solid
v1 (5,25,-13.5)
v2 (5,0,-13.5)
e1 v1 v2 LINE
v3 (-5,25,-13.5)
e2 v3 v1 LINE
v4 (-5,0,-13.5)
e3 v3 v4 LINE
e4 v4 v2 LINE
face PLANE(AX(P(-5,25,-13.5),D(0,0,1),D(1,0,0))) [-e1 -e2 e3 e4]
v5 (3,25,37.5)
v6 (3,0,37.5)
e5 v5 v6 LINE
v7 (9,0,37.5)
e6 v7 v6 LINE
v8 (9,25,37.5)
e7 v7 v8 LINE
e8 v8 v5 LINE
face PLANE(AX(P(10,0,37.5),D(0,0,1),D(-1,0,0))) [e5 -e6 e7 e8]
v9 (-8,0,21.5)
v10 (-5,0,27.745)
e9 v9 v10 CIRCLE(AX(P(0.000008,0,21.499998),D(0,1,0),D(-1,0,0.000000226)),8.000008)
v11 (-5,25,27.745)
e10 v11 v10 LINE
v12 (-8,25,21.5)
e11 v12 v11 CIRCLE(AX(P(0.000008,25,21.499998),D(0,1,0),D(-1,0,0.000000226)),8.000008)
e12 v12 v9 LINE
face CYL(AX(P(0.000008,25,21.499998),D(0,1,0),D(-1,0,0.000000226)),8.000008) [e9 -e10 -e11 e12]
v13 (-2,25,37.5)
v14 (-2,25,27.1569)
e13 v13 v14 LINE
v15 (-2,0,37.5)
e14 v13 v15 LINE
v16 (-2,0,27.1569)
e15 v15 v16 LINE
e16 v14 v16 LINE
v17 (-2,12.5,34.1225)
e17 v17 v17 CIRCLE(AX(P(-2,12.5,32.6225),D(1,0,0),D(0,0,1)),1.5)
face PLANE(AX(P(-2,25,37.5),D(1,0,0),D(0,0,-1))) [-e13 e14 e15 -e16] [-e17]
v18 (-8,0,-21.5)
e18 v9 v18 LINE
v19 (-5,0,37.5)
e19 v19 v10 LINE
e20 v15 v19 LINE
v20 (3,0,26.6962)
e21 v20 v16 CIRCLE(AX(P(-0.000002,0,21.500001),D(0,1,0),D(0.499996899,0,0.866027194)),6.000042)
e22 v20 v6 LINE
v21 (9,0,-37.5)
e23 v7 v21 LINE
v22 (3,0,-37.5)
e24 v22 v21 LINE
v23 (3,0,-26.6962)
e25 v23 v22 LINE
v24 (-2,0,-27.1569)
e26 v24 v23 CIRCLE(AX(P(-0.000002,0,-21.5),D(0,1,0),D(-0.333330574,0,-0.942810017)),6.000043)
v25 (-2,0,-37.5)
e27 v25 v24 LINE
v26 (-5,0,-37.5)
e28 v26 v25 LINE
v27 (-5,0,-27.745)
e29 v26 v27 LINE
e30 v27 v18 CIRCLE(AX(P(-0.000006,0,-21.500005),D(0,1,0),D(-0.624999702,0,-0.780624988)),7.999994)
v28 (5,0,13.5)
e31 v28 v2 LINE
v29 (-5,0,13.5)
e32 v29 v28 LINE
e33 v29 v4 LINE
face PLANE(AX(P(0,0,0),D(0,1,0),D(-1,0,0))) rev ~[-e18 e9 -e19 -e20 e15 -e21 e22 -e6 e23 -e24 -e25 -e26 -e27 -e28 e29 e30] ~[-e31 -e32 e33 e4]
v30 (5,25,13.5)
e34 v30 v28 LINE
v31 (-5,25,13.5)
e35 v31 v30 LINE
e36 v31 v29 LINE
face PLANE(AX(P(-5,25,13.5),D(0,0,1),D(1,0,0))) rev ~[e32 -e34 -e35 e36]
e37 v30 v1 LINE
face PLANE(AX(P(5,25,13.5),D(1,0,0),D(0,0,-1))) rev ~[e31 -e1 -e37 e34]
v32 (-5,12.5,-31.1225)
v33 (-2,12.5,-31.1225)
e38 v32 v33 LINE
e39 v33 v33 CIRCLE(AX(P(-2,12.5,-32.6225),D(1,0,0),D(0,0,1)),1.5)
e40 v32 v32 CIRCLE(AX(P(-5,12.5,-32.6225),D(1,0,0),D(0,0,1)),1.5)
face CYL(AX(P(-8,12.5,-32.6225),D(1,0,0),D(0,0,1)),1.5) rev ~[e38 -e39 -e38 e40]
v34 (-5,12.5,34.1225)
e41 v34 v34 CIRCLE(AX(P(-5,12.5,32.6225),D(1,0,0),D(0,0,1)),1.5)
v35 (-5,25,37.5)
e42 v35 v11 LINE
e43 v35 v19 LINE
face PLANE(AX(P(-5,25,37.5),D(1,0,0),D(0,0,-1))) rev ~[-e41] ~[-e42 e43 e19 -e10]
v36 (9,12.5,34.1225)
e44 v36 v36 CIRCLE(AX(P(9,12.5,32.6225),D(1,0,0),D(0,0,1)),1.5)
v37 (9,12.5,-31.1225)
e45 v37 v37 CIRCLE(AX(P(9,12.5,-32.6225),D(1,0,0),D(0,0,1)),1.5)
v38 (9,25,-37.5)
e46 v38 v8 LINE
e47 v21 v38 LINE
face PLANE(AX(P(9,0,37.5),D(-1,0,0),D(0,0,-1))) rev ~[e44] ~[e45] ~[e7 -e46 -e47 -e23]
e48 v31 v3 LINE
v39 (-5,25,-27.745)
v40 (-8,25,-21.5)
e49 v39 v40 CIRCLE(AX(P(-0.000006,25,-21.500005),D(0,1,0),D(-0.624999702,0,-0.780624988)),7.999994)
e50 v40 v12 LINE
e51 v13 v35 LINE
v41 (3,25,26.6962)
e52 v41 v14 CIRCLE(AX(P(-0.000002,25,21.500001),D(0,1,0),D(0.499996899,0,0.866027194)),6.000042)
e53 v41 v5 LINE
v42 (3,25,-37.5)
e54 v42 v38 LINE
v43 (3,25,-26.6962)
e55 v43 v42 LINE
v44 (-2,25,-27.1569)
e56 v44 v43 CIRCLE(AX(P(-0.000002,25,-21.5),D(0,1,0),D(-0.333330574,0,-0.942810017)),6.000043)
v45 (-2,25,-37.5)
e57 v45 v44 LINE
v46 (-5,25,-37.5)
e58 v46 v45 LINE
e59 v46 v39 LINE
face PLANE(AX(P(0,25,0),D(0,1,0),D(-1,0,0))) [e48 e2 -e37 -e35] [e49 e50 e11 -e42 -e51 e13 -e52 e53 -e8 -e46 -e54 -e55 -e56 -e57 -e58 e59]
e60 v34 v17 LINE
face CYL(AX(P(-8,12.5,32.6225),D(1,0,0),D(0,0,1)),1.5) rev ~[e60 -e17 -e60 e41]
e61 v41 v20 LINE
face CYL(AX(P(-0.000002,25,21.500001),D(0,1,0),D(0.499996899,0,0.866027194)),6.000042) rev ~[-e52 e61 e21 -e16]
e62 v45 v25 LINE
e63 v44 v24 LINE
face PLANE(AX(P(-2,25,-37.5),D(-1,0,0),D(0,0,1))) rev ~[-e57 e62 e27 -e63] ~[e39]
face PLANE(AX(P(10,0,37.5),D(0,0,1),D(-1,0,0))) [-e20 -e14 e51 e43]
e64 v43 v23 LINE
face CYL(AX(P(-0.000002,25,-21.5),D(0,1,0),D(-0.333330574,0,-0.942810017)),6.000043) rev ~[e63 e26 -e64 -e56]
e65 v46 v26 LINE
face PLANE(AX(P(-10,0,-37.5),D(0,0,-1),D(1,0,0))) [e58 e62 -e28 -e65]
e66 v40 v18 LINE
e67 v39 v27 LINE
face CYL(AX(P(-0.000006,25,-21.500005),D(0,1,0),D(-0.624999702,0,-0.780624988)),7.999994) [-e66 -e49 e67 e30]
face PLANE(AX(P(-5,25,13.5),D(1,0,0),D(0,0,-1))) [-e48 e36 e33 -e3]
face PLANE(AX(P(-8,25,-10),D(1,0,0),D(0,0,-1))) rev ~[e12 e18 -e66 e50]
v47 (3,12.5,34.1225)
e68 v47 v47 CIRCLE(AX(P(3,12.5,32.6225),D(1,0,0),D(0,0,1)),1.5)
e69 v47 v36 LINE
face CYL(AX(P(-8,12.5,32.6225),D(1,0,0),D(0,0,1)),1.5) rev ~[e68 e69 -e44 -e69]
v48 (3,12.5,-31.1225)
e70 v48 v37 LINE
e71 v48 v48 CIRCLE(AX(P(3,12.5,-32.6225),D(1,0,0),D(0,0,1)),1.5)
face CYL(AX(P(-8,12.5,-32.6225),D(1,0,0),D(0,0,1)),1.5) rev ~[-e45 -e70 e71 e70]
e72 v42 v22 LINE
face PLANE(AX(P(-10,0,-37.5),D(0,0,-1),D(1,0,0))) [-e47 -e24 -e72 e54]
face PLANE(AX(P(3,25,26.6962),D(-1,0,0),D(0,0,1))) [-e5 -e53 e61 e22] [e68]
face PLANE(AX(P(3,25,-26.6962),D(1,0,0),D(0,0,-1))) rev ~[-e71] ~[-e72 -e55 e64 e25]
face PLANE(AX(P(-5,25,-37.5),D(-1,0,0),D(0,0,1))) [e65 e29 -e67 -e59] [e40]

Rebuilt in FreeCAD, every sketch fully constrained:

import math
import FreeCAD as App
import Part
import Sketcher
from FreeCAD import Vector
Q = App.Units.Quantity


def add_polygon(sketch, points):
    """Adds a closed chain of lines whose ends are joined by coincident constraints."""
    first, n = sketch.GeometryCount, len(points)
    for a, b in zip(points, points[1:] + points[:1]):
        sketch.addGeometry(Part.LineSegment(App.Vector(*a, 0), App.Vector(*b, 0)), False)
    for i in range(n):
        sketch.addConstraint(Sketcher.Constraint("Coincident", first + i, 2, first + (i + 1) % n, 1))

doc = App.newDocument("Part")
body = doc.addObject("PartDesign::Body", "Body")

sketch1 = body.newObject("Sketcher::SketchObject", "Sketch")
sketch1.AttachmentSupport = (doc.getObject("XZ_Plane"), [""])
sketch1.MapMode = "FlatFace"
add_polygon(sketch1, [(-10, 38), (10, 38), (10, -38), (-10, -38)])
sketch1.addConstraint([
    Sketcher.Constraint("Horizontal", 0),
    Sketcher.Constraint("Vertical", 1),
    Sketcher.Constraint("Horizontal", 2),
    Sketcher.Constraint("Vertical", 3),
    Sketcher.Constraint("Symmetric", 0, 2, 2, 2, -1, 1),
    Sketcher.Constraint("DistanceX", 0, 1, 0, 2, Q("20 mm")),
    Sketcher.Constraint("DistanceY", 1, 2, 1, 1, Q("75 mm")),
])
pad1 = body.newObject("PartDesign::Pad", "Pad")
pad1.Profile = sketch1
pad1.Length = 25
pad1.Reversed = True

sketch2 = body.newObject("Sketcher::SketchObject", "Sketch001")
sketch2.AttachmentSupport = (doc.getObject("XZ_Plane"), [""])
sketch2.MapMode = "FlatFace"
sketch2.AttachmentOffset = App.Placement(Vector(0, 0, -25), App.Rotation())
sketch2.addGeometry([
    Part.LineSegment(Vector(-2, 27, 0), Vector(-2, 38, 0)),
    Part.LineSegment(Vector(-2, 38, 0), Vector(3, 38, 0)),
    Part.LineSegment(Vector(3, 38, 0), Vector(3, 27, 0)),
    Part.ArcOfCircle(Part.Circle(Vector(0, 22, 0), Vector(0, 0, 1), 6), math.radians(109), math.radians(420)),
    Part.LineSegment(Vector(3, -38, 0), Vector(-2, -38, 0)),
    Part.LineSegment(Vector(-2, -38, 0), Vector(-2, -27, 0)),
    Part.ArcOfCircle(Part.Circle(Vector(0, -22, 0), Vector(0, 0, 1), 6), math.radians(-60), math.radians(251)),
    Part.LineSegment(Vector(3, -27, 0), Vector(3, -38, 0)),
], False)
sketch2.addConstraint([
    Sketcher.Constraint("Coincident", 0, 2, 1, 1),
    Sketcher.Constraint("Coincident", 1, 2, 2, 1),
    Sketcher.Constraint("Coincident", 2, 2, 3, 2),
    Sketcher.Constraint("Coincident", 3, 1, 0, 1),
    Sketcher.Constraint("Coincident", 4, 2, 5, 1),
    Sketcher.Constraint("Coincident", 5, 2, 6, 2),
    Sketcher.Constraint("Coincident", 6, 1, 7, 1),
    Sketcher.Constraint("Coincident", 7, 2, 4, 1),
    Sketcher.Constraint("Vertical", 0),
    Sketcher.Constraint("Horizontal", 1),
    Sketcher.Constraint("Vertical", 2),
    Sketcher.Constraint("Horizontal", 4),
    Sketcher.Constraint("Vertical", 5),
    Sketcher.Constraint("Vertical", 7),
    Sketcher.Constraint("Equal", 3, 6),
    Sketcher.Constraint("Symmetric", 3, 3, 6, 3, -1, 1),
    Sketcher.Constraint("Symmetric", 0, 2, 4, 2, -1),
    Sketcher.Constraint("Symmetric", 2, 2, 6, 1, -1),
    Sketcher.Constraint("Radius", 3, Q("6 mm")),
    Sketcher.Constraint("DistanceX", 1, 1, 1, 2, Q("5 mm")),
    Sketcher.Constraint("DistanceX", 0, 2, -1, 1, Q("2 mm")),
    Sketcher.Constraint("DistanceY", -1, 1, 3, 3, Q("21.5 mm")),
    Sketcher.Constraint("DistanceY", 3, 3, 0, 2, Q("16 mm")),
])
pocket1 = body.newObject("PartDesign::Pocket", "Pocket")
pocket1.Profile = sketch2
pocket1.Type = "ThroughAll"
pocket1.Reversed = True

sketch3 = body.newObject("Sketcher::SketchObject", "Sketch002")
sketch3.AttachmentSupport = (doc.getObject("XZ_Plane"), [""])
sketch3.MapMode = "FlatFace"
sketch3.AttachmentOffset = App.Placement(Vector(0, 0, -25), App.Rotation())
sketch3.addGeometry(Part.LineSegment(Vector(-10, -38, 0), Vector(-10, 38, 0)), False)
sketch3.addGeometry(Part.LineSegment(Vector(-10, 38, 0), Vector(-5, 38, 0)), False)
sketch3.addGeometry(Part.LineSegment(Vector(-5, 38, 0), Vector(-5, 28, 0)), False)
sketch3.addGeometry(Part.ArcOfCircle(Part.Circle(Vector(0, 22, 0), Vector(0, 0, 1), 8), math.radians(129), math.radians(180)), False)
sketch3.addGeometry(Part.LineSegment(Vector(-8, 22, 0), Vector(-8, -22, 0)), False)
sketch3.addGeometry(Part.ArcOfCircle(Part.Circle(Vector(0, -22, 0), Vector(0, 0, 1), 8), math.radians(180), math.radians(231)), False)
sketch3.addGeometry(Part.LineSegment(Vector(-5, -28, 0), Vector(-5, -38, 0)), False)
sketch3.addGeometry(Part.LineSegment(Vector(-5, -38, 0), Vector(-10, -38, 0)), False)
add_polygon(sketch3, [(-5, -14), (-5, 14), (5, 14), (5, -14)])
sketch3.addConstraint([
    Sketcher.Constraint("Coincident", 0, 2, 1, 1),
    Sketcher.Constraint("Coincident", 1, 2, 2, 1),
    Sketcher.Constraint("Coincident", 2, 2, 3, 1),
    Sketcher.Constraint("Tangent", 3, 2, 4, 1),
    Sketcher.Constraint("Tangent", 4, 2, 5, 1),
    Sketcher.Constraint("Coincident", 5, 2, 6, 1),
    Sketcher.Constraint("Coincident", 6, 2, 7, 1),
    Sketcher.Constraint("Coincident", 7, 2, 0, 1),
    Sketcher.Constraint("Vertical", 0),
    Sketcher.Constraint("Horizontal", 1),
    Sketcher.Constraint("Vertical", 2),
    Sketcher.Constraint("Vertical", 4),
    Sketcher.Constraint("Vertical", 6),
    Sketcher.Constraint("Horizontal", 7),
    Sketcher.Constraint("Vertical", 8),
    Sketcher.Constraint("Horizontal", 9),
    Sketcher.Constraint("Vertical", 10),
    Sketcher.Constraint("Horizontal", 11),
    Sketcher.Constraint("Equal", 3, 5),
    Sketcher.Constraint("Symmetric", 3, 3, 5, 3, -1, 1),
    Sketcher.Constraint("Symmetric", 8, 2, 10, 2, -1, 1),
    Sketcher.Constraint("Symmetric", 1, 2, 6, 2, -1),
    Sketcher.Constraint("Vertical", 6, 2, 8, 2),
    Sketcher.Constraint("DistanceX", 1, 1, 1, 2, Q("5 mm")),
    Sketcher.Constraint("DistanceX", 9, 1, 9, 2, Q("10 mm")),
    Sketcher.Constraint("Radius", 3, Q("8 mm")),
    Sketcher.Constraint("DistanceY", -1, 1, 3, 3, Q("21.5 mm")),
    Sketcher.Constraint("DistanceY", 0, 1, 0, 2, Q("75 mm")),
    Sketcher.Constraint("DistanceY", 8, 1, 8, 2, Q("27 mm")),
])
pocket2 = body.newObject("PartDesign::Pocket", "Pocket001")
pocket2.Profile = sketch3
pocket2.Type = "ThroughAll"
pocket2.Reversed = True

sketch4 = body.newObject("Sketcher::SketchObject", "Sketch003")
sketch4.AttachmentSupport = (doc.getObject("YZ_Plane"), [""])
sketch4.MapMode = "FlatFace"
sketch4.AttachmentOffset = App.Placement(Vector(0, 0, -8), App.Rotation())
sketch4.addGeometry([
    Part.Circle(Vector(12.5, 32.6, 0), Vector(0, 0, 1), 1.5),
    Part.Circle(Vector(12.5, -32.6, 0), Vector(0, 0, 1), 1.5),
], False)
sketch4.addConstraint([
    Sketcher.Constraint("Equal", 0, 1),
    Sketcher.Constraint("Symmetric", 0, 3, 1, 3, -1),
    Sketcher.Constraint("Diameter", 0, Q("3 mm")),
    Sketcher.Constraint("DistanceX", -1, 1, 0, 3, Q("12.5 mm")),
    Sketcher.Constraint("DistanceY", 1, 3, 0, 3, Q("65.245 mm")),
])
doc.recompute()
hole = body.newObject("PartDesign::Hole", "Hole")
hole.Profile = sketch4
hole.ThreadType = "None"
hole.Diameter = 3
hole.DepthType = "ThroughAll"
hole.Reversed = True

sketch5 = body.newObject("Sketcher::SketchObject", "Sketch004")
sketch5.AttachmentSupport = (doc.getObject("XZ_Plane"), [""])
sketch5.MapMode = "FlatFace"
add_polygon(sketch5, [(9, 37.5), (9, -37.5), (10, -37.5), (10, 37.5)])
sketch5.addConstraint([
    Sketcher.Constraint("Vertical", 0),
    Sketcher.Constraint("Horizontal", 1),
    Sketcher.Constraint("Vertical", 2),
    Sketcher.Constraint("Horizontal", 3),
    Sketcher.Constraint("DistanceX", 1, 1, 1, 2, Q("1 mm")),
    Sketcher.Constraint("DistanceY", 0, 2, 0, 1, Q("75 mm")),
    Sketcher.Constraint("DistanceX", -1, 1, 0, 2, Q("9 mm")),
    Sketcher.Constraint("DistanceY", 0, 2, -1, 1, Q("37.5 mm")),
])
pocket3 = body.newObject("PartDesign::Pocket", "Pocket002")
pocket3.Profile = sketch5
pocket3.Type = "ThroughAll"

doc.recompute()
